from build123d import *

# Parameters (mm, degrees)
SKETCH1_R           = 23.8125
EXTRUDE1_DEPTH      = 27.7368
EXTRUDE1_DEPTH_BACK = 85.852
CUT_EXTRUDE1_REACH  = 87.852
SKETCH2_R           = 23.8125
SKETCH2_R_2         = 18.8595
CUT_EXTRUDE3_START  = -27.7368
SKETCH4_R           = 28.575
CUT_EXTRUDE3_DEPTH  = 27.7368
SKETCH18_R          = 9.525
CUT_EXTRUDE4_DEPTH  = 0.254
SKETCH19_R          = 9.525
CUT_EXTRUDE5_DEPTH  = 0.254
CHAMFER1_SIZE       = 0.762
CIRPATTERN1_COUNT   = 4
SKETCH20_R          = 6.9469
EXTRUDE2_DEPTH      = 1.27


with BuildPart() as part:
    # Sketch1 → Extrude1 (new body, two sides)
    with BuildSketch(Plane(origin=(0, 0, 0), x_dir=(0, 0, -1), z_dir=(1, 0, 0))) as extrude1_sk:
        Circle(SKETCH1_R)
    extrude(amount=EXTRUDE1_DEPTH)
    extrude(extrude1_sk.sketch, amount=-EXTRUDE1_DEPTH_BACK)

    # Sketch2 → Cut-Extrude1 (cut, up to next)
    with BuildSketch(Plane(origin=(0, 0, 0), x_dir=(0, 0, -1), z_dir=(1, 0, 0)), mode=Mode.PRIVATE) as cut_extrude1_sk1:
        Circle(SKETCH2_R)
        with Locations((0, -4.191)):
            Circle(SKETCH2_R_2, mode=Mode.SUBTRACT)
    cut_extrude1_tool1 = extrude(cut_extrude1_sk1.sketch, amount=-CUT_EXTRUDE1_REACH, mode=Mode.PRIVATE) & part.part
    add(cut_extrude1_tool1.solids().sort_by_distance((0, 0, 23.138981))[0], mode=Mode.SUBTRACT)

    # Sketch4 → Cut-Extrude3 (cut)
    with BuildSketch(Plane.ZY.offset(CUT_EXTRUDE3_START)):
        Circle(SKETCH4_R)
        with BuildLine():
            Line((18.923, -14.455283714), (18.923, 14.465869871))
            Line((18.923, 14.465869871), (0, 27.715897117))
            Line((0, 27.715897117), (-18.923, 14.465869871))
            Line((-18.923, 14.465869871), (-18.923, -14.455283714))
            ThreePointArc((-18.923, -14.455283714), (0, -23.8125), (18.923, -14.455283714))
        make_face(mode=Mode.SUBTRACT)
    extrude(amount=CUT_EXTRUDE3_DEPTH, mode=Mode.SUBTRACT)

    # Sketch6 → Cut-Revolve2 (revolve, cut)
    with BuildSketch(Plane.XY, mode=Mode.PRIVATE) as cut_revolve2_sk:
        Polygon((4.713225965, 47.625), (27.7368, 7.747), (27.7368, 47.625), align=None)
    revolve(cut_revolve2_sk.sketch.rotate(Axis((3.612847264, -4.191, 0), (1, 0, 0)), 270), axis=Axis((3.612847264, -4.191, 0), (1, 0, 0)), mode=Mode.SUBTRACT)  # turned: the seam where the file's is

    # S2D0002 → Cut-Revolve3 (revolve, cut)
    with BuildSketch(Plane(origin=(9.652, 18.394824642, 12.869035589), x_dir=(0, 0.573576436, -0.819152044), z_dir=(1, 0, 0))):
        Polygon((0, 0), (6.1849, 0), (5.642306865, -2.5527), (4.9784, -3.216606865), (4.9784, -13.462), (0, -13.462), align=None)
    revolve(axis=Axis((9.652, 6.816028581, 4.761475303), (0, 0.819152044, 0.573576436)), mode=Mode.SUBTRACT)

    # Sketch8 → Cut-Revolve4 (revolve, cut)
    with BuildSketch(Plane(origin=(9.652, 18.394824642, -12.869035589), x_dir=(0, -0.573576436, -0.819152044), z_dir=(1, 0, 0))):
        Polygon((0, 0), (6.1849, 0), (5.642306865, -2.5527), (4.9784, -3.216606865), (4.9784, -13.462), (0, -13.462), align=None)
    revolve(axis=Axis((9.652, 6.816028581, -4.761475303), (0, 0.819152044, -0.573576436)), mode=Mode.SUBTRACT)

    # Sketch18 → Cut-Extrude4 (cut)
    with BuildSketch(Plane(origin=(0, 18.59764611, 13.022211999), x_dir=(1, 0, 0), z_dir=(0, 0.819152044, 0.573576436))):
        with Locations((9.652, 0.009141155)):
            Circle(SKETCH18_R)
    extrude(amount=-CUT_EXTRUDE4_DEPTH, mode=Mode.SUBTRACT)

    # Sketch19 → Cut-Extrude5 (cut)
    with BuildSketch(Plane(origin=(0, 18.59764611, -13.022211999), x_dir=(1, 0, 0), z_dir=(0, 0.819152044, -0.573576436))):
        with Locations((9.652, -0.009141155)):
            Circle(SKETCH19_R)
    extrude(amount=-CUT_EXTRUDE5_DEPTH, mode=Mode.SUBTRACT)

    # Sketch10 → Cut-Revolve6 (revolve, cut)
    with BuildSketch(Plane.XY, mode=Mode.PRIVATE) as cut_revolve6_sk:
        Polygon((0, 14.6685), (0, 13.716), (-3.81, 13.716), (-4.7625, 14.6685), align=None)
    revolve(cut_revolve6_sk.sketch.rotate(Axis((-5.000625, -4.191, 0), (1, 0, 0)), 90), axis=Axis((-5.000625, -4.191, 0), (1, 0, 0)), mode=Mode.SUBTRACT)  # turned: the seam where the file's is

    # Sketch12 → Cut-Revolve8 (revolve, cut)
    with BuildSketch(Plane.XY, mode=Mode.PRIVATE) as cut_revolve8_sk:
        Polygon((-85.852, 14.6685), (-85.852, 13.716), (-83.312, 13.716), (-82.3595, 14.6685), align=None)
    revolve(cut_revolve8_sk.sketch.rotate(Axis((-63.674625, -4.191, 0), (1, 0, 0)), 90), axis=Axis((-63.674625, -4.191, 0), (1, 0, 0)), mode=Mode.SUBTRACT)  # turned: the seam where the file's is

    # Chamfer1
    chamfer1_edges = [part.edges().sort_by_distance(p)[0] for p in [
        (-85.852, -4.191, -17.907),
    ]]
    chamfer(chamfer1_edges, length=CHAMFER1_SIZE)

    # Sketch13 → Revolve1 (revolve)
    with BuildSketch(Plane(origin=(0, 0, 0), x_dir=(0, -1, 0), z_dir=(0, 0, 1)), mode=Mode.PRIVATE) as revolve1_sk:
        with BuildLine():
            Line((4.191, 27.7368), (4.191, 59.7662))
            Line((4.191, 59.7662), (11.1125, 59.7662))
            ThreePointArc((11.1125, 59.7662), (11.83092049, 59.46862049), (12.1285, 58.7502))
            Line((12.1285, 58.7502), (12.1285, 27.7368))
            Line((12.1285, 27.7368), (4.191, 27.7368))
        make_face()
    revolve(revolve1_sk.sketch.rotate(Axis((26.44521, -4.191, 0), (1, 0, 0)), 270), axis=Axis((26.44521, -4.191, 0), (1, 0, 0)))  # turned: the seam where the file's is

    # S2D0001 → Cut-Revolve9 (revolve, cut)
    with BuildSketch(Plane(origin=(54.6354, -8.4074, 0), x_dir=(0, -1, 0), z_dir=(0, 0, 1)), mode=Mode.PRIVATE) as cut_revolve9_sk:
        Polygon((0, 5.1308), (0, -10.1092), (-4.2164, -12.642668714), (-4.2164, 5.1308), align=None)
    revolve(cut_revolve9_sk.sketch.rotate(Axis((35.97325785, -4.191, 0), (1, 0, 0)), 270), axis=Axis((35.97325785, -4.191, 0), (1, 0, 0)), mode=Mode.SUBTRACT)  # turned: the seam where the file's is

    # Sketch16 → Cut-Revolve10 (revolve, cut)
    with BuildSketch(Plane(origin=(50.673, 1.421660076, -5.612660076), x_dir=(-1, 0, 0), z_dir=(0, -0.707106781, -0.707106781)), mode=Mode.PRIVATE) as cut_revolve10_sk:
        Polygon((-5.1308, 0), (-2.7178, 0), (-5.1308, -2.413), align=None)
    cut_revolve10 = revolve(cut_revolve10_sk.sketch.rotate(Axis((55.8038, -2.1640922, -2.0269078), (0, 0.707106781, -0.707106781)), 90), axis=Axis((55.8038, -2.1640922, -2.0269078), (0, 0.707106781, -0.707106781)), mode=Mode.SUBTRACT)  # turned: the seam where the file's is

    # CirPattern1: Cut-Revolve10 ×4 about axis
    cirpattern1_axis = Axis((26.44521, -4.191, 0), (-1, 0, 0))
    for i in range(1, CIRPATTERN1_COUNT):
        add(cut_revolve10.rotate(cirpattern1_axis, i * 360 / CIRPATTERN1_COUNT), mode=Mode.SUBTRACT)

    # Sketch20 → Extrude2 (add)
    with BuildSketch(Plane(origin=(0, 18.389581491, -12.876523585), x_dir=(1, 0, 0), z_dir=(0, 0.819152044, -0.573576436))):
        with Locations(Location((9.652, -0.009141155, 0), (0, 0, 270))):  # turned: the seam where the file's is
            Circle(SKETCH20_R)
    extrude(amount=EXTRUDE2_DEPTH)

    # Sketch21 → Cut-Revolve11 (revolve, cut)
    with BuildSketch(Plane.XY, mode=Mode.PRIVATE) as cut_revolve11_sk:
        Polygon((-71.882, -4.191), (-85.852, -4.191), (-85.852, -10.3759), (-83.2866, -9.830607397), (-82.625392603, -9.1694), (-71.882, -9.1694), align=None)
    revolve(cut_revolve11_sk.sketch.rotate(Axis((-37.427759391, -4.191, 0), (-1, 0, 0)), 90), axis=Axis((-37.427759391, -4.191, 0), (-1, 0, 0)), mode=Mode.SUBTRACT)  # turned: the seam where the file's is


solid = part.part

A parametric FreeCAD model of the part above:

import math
import FreeCAD as App
import Part
import Sketcher
from FreeCAD import Vector
Q = App.Units.Quantity


def edges_at(feature, points):
    """Names of the edges that pass closest to the given points."""
    edges = feature.Shape.Edges
    near = lambda p: min(range(len(edges)), key=lambda i: edges[i].distToShape(Part.Vertex(*p))[0])
    return sorted({f"Edge{near(p) + 1}" for p in points})

doc = App.newDocument("Part")
body = doc.addObject("PartDesign::Body", "Body")

# Sketch on YZ plane
sketch1 = body.newObject("Sketcher::SketchObject", "Sketch")
sketch1.AttachmentSupport = (doc.getObject("YZ_Plane"), [""])
sketch1.MapMode = "FlatFace"
sketch1.addGeometry(Part.Circle(Vector(0, 0, 0), Vector(0, 0, 1), 24), False)
sketch1.addConstraint(Sketcher.Constraint("Coincident", 0, 3, -1, 1))
sketch1.addConstraint(Sketcher.Constraint("Diameter", 0, Q("1.875 in")))
pad1 = body.newObject("PartDesign::Pad", "Pad")
pad1.Profile = sketch1
pad1.Type = "TwoLengths"
pad1.Length = Q("1.092 in")
pad1.Length2 = Q("3.38 in")

# Sketch on YZ plane
sketch2 = body.newObject("Sketcher::SketchObject", "Sketch001")
sketch2.AttachmentSupport = (doc.getObject("YZ_Plane"), [""])
sketch2.MapMode = "FlatFace"
sketch2.addGeometry(Part.Circle(Vector(0, 0, 0), Vector(0, 0, 1), 24), False)
sketch2.addGeometry(Part.Circle(Vector(-4, 0, 0), Vector(0, 0, 1), 19), False)
sketch2.addConstraint(Sketcher.Constraint("Coincident", 0, 3, -1, 1))
sketch2.addConstraint(Sketcher.Constraint("PointOnObject", 1, 3, -1))
sketch2.addConstraint(Sketcher.Constraint("Diameter", 0, Q("1.875 in")))
sketch2.addConstraint(Sketcher.Constraint("Diameter", 1, Q("1.485 in")))
sketch2.addConstraint(Sketcher.Constraint("DistanceX", 1, 3, -1, 1, Q("0.165 in")))
pocket1 = body.newObject("PartDesign::Pocket", "Pocket")
pocket1.Profile = sketch2
pocket1.Type = "UpToFirst"

# Sketch on YZ plane
sketch3 = body.newObject("Sketcher::SketchObject", "Sketch002")
sketch3.AttachmentSupport = (doc.getObject("YZ_Plane"), [""])
sketch3.MapMode = "FlatFace"
sketch3.AttachmentOffset = App.Placement(Vector(0, 0, 1.092 * 25.4), App.Rotation())
sketch3.addGeometry(Part.Circle(Vector(0, 0, 0), Vector(0, 0, 1), 29), False)
sketch3.addGeometry(Part.LineSegment(Vector(14, 19, 0), Vector(-14, 19, 0)), False)
sketch3.addGeometry(Part.ArcOfCircle(Part.Circle(Vector(0, 0, 0), Vector(0, 0, 1), 24), math.radians(127), math.radians(233)), False)
sketch3.addGeometry(Part.LineSegment(Vector(-14, -19, 0), Vector(14, -19, 0)), False)
sketch3.addGeometry(Part.LineSegment(Vector(14, -19, 0), Vector(28, 0, 0)), False)
sketch3.addGeometry(Part.LineSegment(Vector(28, 0, 0), Vector(14, 19, 0)), False)
sketch3.addConstraint(Sketcher.Constraint("Coincident", 1, 2, 2, 1))
sketch3.addConstraint(Sketcher.Constraint("Coincident", 2, 2, 3, 1))
sketch3.addConstraint(Sketcher.Constraint("Coincident", 3, 2, 4, 1))
sketch3.addConstraint(Sketcher.Constraint("Coincident", 4, 2, 5, 1))
sketch3.addConstraint(Sketcher.Constraint("Coincident", 5, 2, 1, 1))
sketch3.addConstraint(Sketcher.Constraint("Horizontal", 1))
sketch3.addConstraint(Sketcher.Constraint("Horizontal", 3))
sketch3.addConstraint(Sketcher.Constraint("Coincident", 0, 3, -1, 1))
sketch3.addConstraint(Sketcher.Constraint("Coincident", 2, 3, -1, 1))
sketch3.addConstraint(Sketcher.Constraint("Symmetric", 3, 2, 5, 2, -1))
sketch3.addConstraint(Sketcher.Constraint("PointOnObject", 4, 2, -1))
sketch3.addConstraint(Sketcher.Constraint("Diameter", 0, Q("2.25 in")))
sketch3.addConstraint(Sketcher.Constraint("Angle", 4, Q("55 deg")))
sketch3.addConstraint(Sketcher.Constraint("Radius", 2, Q("0.9375 in")))
sketch3.addConstraint(Sketcher.Constraint("DistanceY", 2, 2, 1, 2, Q("1.49 in")))
sketch3.addConstraint(Sketcher.Constraint("DistanceX", 1, 2, 1, 1, Q("28.921154 mm")))
pocket2 = body.newObject("PartDesign::Pocket", "Pocket001")
pocket2.Profile = sketch3
pocket2.Length = Q("1.092 in")

# Sketch on XY plane
sketch4 = body.newObject("Sketcher::SketchObject", "Sketch003")
sketch4.AttachmentSupport = (doc.getObject("XY_Plane"), [""])
sketch4.MapMode = "FlatFace"
sketch4.addGeometry(Part.LineSegment(Vector(5, 48, 0), Vector(28, 8, 0)), False)
sketch4.addGeometry(Part.LineSegment(Vector(28, 8, 0), Vector(28, 48, 0)), False)
sketch4.addGeometry(Part.LineSegment(Vector(28, 48, 0), Vector(5, 48, 0)), False)
sketch4.addGeometry(Part.LineSegment(Vector(5, -4, 0), Vector(28, -4, 0)), True)  # axis
sketch4.addConstraint(Sketcher.Constraint("Coincident", 0, 2, 1, 1))
sketch4.addConstraint(Sketcher.Constraint("Coincident", 1, 2, 2, 1))
sketch4.addConstraint(Sketcher.Constraint("Coincident", 2, 2, 0, 1))
sketch4.addConstraint(Sketcher.Constraint("Vertical", 1))
sketch4.addConstraint(Sketcher.Constraint("Horizontal", 2))
sketch4.addConstraint(Sketcher.Constraint("Horizontal", 3))
sketch4.addConstraint(Sketcher.Constraint("Vertical", 2, 2, 3, 1))
sketch4.addConstraint(Sketcher.Constraint("Vertical", 1, 2, 3, 2))
sketch4.addConstraint(Sketcher.Constraint("Angle", 0, Q("-60 deg")))
sketch4.addConstraint(Sketcher.Constraint("DistanceY", 1, 1, 1, 2, Q("1.57 in")))
sketch4.addConstraint(Sketcher.Constraint("DistanceY", 3, 1, 0, 2, Q("0.47 in")))
sketch4.addConstraint(Sketcher.Constraint("DistanceX", -1, 1, 0, 2, Q("1.092 in")))
sketch4.addConstraint(Sketcher.Constraint("DistanceY", -1, 1, 0, 2, Q("0.305 in")))
groove = body.newObject("PartDesign::Groove", "Groove")
groove.Profile = sketch4
groove.ReferenceAxis = (sketch4, ["Axis0"])
groove.Angle = 360

# Sketch on YZ plane
sketch5 = body.newObject("Sketcher::SketchObject", "Sketch004")
sketch5.AttachmentSupport = (doc.getObject("YZ_Plane"), [""])
sketch5.MapMode = "FlatFace"
sketch5.AttachmentOffset = App.Placement(Vector(0, 0, 0.38 * 25.4), App.Rotation())
sketch5.addGeometry(Part.LineSegment(Vector(21.9, 7.8, 0), Vector(18.4, 12.9, 0)), False)
sketch5.addGeometry(Part.LineSegment(Vector(18.4, 12.9, 0), Vector(7.4, 5.1, 0)), False)
sketch5.addGeometry(Part.LineSegment(Vector(7.4, 5.1, 0), Vector(10.2, 1.1, 0)), False)
sketch5.addGeometry(Part.LineSegment(Vector(10.2, 1.1, 0), Vector(18.6, 6.9, 0)), False)
sketch5.addGeometry(Part.LineSegment(Vector(18.6, 6.9, 0), Vector(19.5, 6.8, 0)), False)
sketch5.addGeometry(Part.LineSegment(Vector(19.5, 6.8, 0), Vector(21.9, 7.8, 0)), False)
sketch5.addGeometry(Part.LineSegment(Vector(7.4, 5.1, 0), Vector(18.4, 12.9, 0)), True)  # axis
sketch5.addConstraint(Sketcher.Constraint("Coincident", 0, 2, 1, 1))
sketch5.addConstraint(Sketcher.Constraint("Coincident", 1, 2, 2, 1))
sketch5.addConstraint(Sketcher.Constraint("Coincident", 2, 2, 3, 1))
sketch5.addConstraint(Sketcher.Constraint("Coincident", 3, 2, 4, 1))
sketch5.addConstraint(Sketcher.Constraint("Coincident", 4, 2, 5, 1))
sketch5.addConstraint(Sketcher.Constraint("Coincident", 5, 2, 0, 1))
sketch5.addConstraint(Sketcher.Constraint("Coincident", 6, 1, 1, 2))
sketch5.addConstraint(Sketcher.Constraint("Coincident", 6, 2, 0, 2))
sketch5.addConstraint(Sketcher.Constraint("Perpendicular", 0, 1))
sketch5.addConstraint(Sketcher.Constraint("Perpendicular", 1, 2))
sketch5.addConstraint(Sketcher.Constraint("Perpendicular", 2, 3))
sketch5.addConstraint(Sketcher.Constraint("Angle", 0, Q("125 deg")))
sketch5.addConstraint(Sketcher.Constraint("Angle", 4, Q("-10 deg")))
sketch5.addConstraint(Sketcher.Constraint("Angle", 5, Q("23 deg")))
sketch5.addConstraint(Sketcher.Constraint("Distance", 1, Q("0.53 in")))
sketch5.addConstraint(Sketcher.Constraint("Distance", 2, Q("0.196 in")))
sketch5.addConstraint(Sketcher.Constraint("Distance", 0, Q("0.2435 in")))
sketch5.addConstraint(Sketcher.Constraint("DistanceX", -1, 1, 1, 2, Q("7.3674 mm")))
sketch5.addConstraint(Sketcher.Constraint("DistanceY", -1, 1, 3, 2, Q("6.945999 mm")))
sketch5.addConstraint(Sketcher.Constraint("Distance", 5, Q("2.609729 mm")))
groove2 = body.newObject("PartDesign::Groove", "Groove001")
groove2.Profile = sketch5
groove2.ReferenceAxis = (sketch5, ["Axis0"])
groove2.Angle = 360

# Sketch on YZ plane
sketch6 = body.newObject("Sketcher::SketchObject", "Sketch005")
sketch6.AttachmentSupport = (doc.getObject("YZ_Plane"), [""])
sketch6.MapMode = "FlatFace"
sketch6.AttachmentOffset = App.Placement(Vector(0, 0, 0.38 * 25.4), App.Rotation())
sketch6.addGeometry(Part.LineSegment(Vector(14.8, -17.9, 0), Vector(18.4, -12.9, 0)), False)
sketch6.addGeometry(Part.LineSegment(Vector(18.4, -12.9, 0), Vector(7.4, -5.1, 0)), False)
sketch6.addGeometry(Part.LineSegment(Vector(7.4, -5.1, 0), Vector(4.5, -9.2, 0)), False)
sketch6.addGeometry(Part.LineSegment(Vector(4.5, -9.2, 0), Vector(12.9, -15.1, 0)), False)
sketch6.addGeometry(Part.LineSegment(Vector(12.9, -15.1, 0), Vector(13.1, -16, 0)), False)
sketch6.addGeometry(Part.LineSegment(Vector(13.1, -16, 0), Vector(14.8, -17.9, 0)), False)
sketch6.addGeometry(Part.LineSegment(Vector(7.4, -5.1, 0), Vector(18.4, -12.9, 0)), True)  # axis
sketch6.addConstraint(Sketcher.Constraint("Coincident", 0, 2, 1, 1))
sketch6.addConstraint(Sketcher.Constraint("Coincident", 1, 2, 2, 1))
sketch6.addConstraint(Sketcher.Constraint("Coincident", 2, 2, 3, 1))
sketch6.addConstraint(Sketcher.Constraint("Coincident", 3, 2, 4, 1))
sketch6.addConstraint(Sketcher.Constraint("Coincident", 4, 2, 5, 1))
sketch6.addConstraint(Sketcher.Constraint("Coincident", 5, 2, 0, 1))
sketch6.addConstraint(Sketcher.Constraint("Coincident", 6, 1, 1, 2))
sketch6.addConstraint(Sketcher.Constraint("Coincident", 6, 2, 0, 2))
sketch6.addConstraint(Sketcher.Constraint("Perpendicular", 0, 1))
sketch6.addConstraint(Sketcher.Constraint("Perpendicular", 1, 2))
sketch6.addConstraint(Sketcher.Constraint("Perpendicular", 2, 3))
sketch6.addConstraint(Sketcher.Constraint("Angle", 0, Q("55 deg")))
sketch6.addConstraint(Sketcher.Constraint("Angle", 4, Q("-80 deg")))
sketch6.addConstraint(Sketcher.Constraint("Angle", 5, Q("-47 deg")))
sketch6.addConstraint(Sketcher.Constraint("Distance", 1, Q("0.53 in")))
sketch6.addConstraint(Sketcher.Constraint("Distance", 2, Q("0.196 in")))
sketch6.addConstraint(Sketcher.Constraint("Distance", 0, Q("0.2435 in")))
sketch6.addConstraint(Sketcher.Constraint("DistanceX", -1, 1, 1, 2, Q("7.3674 mm")))
sketch6.addConstraint(Sketcher.Constraint("Distance", 5, Q("2.609729 mm")))
sketch6.addConstraint(Sketcher.Constraint("DistanceY", 1, 2, -1, 1, Q("5.14755 mm")))
groove3 = body.newObject("PartDesign::Groove", "Groove002")
groove3.Profile = sketch6
groove3.ReferenceAxis = (sketch6, ["Axis0"])
groove3.Angle = 360

# Sketch on an angled plane
sketch7 = body.newObject("Sketcher::SketchObject", "Sketch006")
sketch7.Placement = App.Placement(Vector(0, 18.597646, 13.022212), App.Rotation(Vector(1, 0, 0), Vector(0, 0.573576436, -0.819152044), Vector(0, 0.819152044, 0.573576436), "ZXY"))
sketch7.addGeometry(Part.Circle(Vector(10, 0, 0), Vector(0, 0, 1), 10), False)
sketch7.addConstraint(Sketcher.Constraint("Diameter", 0, Q("0.75 in")))
sketch7.addConstraint(Sketcher.Constraint("DistanceX", -1, 1, 0, 3, Q("0.38 in")))
sketch7.addConstraint(Sketcher.Constraint("DistanceY", -1, 1, 0, 3, Q("0.009141 mm")))
pocket3 = body.newObject("PartDesign::Pocket", "Pocket002")
pocket3.Profile = sketch7
pocket3.Length = Q("0.01 in")

# Sketch on an angled plane
sketch8 = body.newObject("Sketcher::SketchObject", "Sketch007")
sketch8.Placement = App.Placement(Vector(0, 18.597646, -13.022212), App.Rotation(Vector(1, 0, 0), Vector(0, -0.573576436, -0.819152044), Vector(0, 0.819152044, -0.573576436), "ZXY"))
sketch8.addGeometry(Part.Circle(Vector(10, 0, 0), Vector(0, 0, 1), 10), False)
sketch8.addConstraint(Sketcher.Constraint("Diameter", 0, Q("0.75 in")))
sketch8.addConstraint(Sketcher.Constraint("DistanceX", -1, 1, 0, 3, Q("0.38 in")))
sketch8.addConstraint(Sketcher.Constraint("DistanceY", 0, 3, -1, 1, Q("0.009141 mm")))
pocket4 = body.newObject("PartDesign::Pocket", "Pocket003")
pocket4.Profile = sketch8
pocket4.Length = Q("0.01 in")

# Sketch on XY plane
sketch9 = body.newObject("Sketcher::SketchObject", "Sketch008")
sketch9.AttachmentSupport = (doc.getObject("XY_Plane"), [""])
sketch9.MapMode = "FlatFace"
sketch9.addGeometry(Part.LineSegment(Vector(0, 13.7, 0), Vector(0, 14.7, 0)), False)
sketch9.addGeometry(Part.LineSegment(Vector(0, 14.7, 0), Vector(-4.8, 14.7, 0)), False)
sketch9.addGeometry(Part.LineSegment(Vector(-4.8, 14.7, 0), Vector(-3.8, 13.7, 0)), False)
sketch9.addGeometry(Part.LineSegment(Vector(-3.8, 13.7, 0), Vector(0, 13.7, 0)), False)
sketch9.addGeometry(Part.LineSegment(Vector(-4.8, -4.2, 0), Vector(0, -4.2, 0)), True)  # axis
sketch9.addConstraint(Sketcher.Constraint("Coincident", 0, 2, 1, 1))
sketch9.addConstraint(Sketcher.Constraint("Coincident", 1, 2, 2, 1))
sketch9.addConstraint(Sketcher.Constraint("Coincident", 2, 2, 3, 1))
sketch9.addConstraint(Sketcher.Constraint("Coincident", 3, 2, 0, 1))
sketch9.addConstraint(Sketcher.Constraint("Vertical", 0))
sketch9.addConstraint(Sketcher.Constraint("Horizontal", 1))
sketch9.addConstraint(Sketcher.Constraint("Horizontal", 3))
sketch9.addConstraint(Sketcher.Constraint("Horizontal", 4))
sketch9.addConstraint(Sketcher.Constraint("PointOnObject", 0, 2, -2))
sketch9.addConstraint(Sketcher.Constraint("PointOnObject", 4, 2, -2))
sketch9.addConstraint(Sketcher.Constraint("Vertical", 1, 2, 4, 1))
sketch9.addConstraint(Sketcher.Constraint("Angle", 2, Q("-45 deg")))
sketch9.addConstraint(Sketcher.Constraint("DistanceX", 3, 1, 3, 2, Q("0.15 in")))
sketch9.addConstraint(Sketcher.Constraint("DistanceX", 1, 2, 1, 1, Q("0.1875 in")))
sketch9.addConstraint(Sketcher.Constraint("DistanceY", -1, 1, 2, 2, Q("0.54 in")))
sketch9.addConstraint(Sketcher.Constraint("DistanceY", 4, 1, -1, 1, Q("0.165 in")))
groove4 = body.newObject("PartDesign::Groove", "Groove003")
groove4.Profile = sketch9
groove4.ReferenceAxis = (sketch9, ["Axis0"])
groove4.Angle = 360

# Sketch on XY plane
sketch10 = body.newObject("Sketcher::SketchObject", "Sketch009")
sketch10.AttachmentSupport = (doc.getObject("XY_Plane"), [""])
sketch10.MapMode = "FlatFace"
sketch10.addGeometry(Part.LineSegment(Vector(-85.9, 14.7, 0), Vector(-85.9, 13.7, 0)), False)
sketch10.addGeometry(Part.LineSegment(Vector(-85.9, 13.7, 0), Vector(-83.3, 13.7, 0)), False)
sketch10.addGeometry(Part.LineSegment(Vector(-83.3, 13.7, 0), Vector(-82.4, 14.7, 0)), False)
sketch10.addGeometry(Part.LineSegment(Vector(-82.4, 14.7, 0), Vector(-85.9, 14.7, 0)), False)
sketch10.addGeometry(Part.LineSegment(Vector(-85.9, -4.2, 0), Vector(-82.4, -4.2, 0)), True)  # axis
sketch10.addConstraint(Sketcher.Constraint("Coincident", 0, 2, 1, 1))
sketch10.addConstraint(Sketcher.Constraint("Coincident", 1, 2, 2, 1))
sketch10.addConstraint(Sketcher.Constraint("Coincident", 2, 2, 3, 1))
sketch10.addConstraint(Sketcher.Constraint("Coincident", 3, 2, 0, 1))
sketch10.addConstraint(Sketcher.Constraint("Vertical", 0))
sketch10.addConstraint(Sketcher.Constraint("Horizontal", 1))
sketch10.addConstraint(Sketcher.Constraint("Horizontal", 3))
sketch10.addConstraint(Sketcher.Constraint("Horizontal", 4))
sketch10.addConstraint(Sketcher.Constraint("Vertical", 3, 2, 4, 1))
sketch10.addConstraint(Sketcher.Constraint("Vertical", 2, 2, 4, 2))
sketch10.addConstraint(Sketcher.Constraint("DistanceX", 1, 1, 1, 2, Q("0.1 in")))
sketch10.addConstraint(Sketcher.Constraint("Angle", 2, Q("45 deg")))
sketch10.addConstraint(Sketcher.Constraint("DistanceX", 0, 2, -1, 1, Q("3.38 in")))
sketch10.addConstraint(Sketcher.Constraint("DistanceY", -1, 1, 0, 2, Q("0.54 in")))
sketch10.addConstraint(Sketcher.Constraint("DistanceX", 3, 2, 3, 1, Q("0.1375 in")))
sketch10.addConstraint(Sketcher.Constraint("DistanceY", 4, 1, -1, 1, Q("0.165 in")))
groove5 = body.newObject("PartDesign::Groove", "Groove004")
groove5.Profile = sketch10
groove5.ReferenceAxis = (sketch10, ["Axis0"])
groove5.Angle = 360
doc.recompute()

chamfer = body.newObject("PartDesign::Chamfer", "Chamfer")
chamfer.Base = (groove5, edges_at(groove5, [(-85.852, -4.191, -17.907)]))
chamfer.Size = Q("0.03 in")

# Sketch on XY plane
sketch11 = body.newObject("Sketcher::SketchObject", "Sketch010")
sketch11.AttachmentSupport = (doc.getObject("XY_Plane"), [""])
sketch11.MapMode = "FlatFace"
sketch11.addGeometry(Part.LineSegment(Vector(59.8, -4.2, 0), Vector(27.7, -4.2, 0)), False)
sketch11.addGeometry(Part.LineSegment(Vector(27.7, -4.2, 0), Vector(27.7, -12.1, 0)), False)
sketch11.addGeometry(Part.LineSegment(Vector(27.7, -12.1, 0), Vector(58.8, -12.1, 0)), False)
sketch11.addGeometry(Part.ArcOfCircle(Part.Circle(Vector(58.8, -11.1, 0), Vector(0, 0, 1), 1), math.radians(-90), math.radians(0)), False)
sketch11.addGeometry(Part.LineSegment(Vector(59.8, -11.1, 0), Vector(59.8, -4.2, 0)), False)
sketch11.addGeometry(Part.LineSegment(Vector(27.7, -4.2, 0), Vector(59.8, -4.2, 0)), True)  # axis
sketch11.addConstraint(Sketcher.Constraint("Coincident", 0, 2, 1, 1))
sketch11.addConstraint(Sketcher.Constraint("Coincident", 1, 2, 2, 1))
sketch11.addConstraint(Sketcher.Constraint("Tangent", 2, 2, 3, 1))
sketch11.addConstraint(Sketcher.Constraint("Tangent", 3, 2, 4, 1))
sketch11.addConstraint(Sketcher.Constraint("Coincident", 4, 2, 0, 1))
sketch11.addConstraint(Sketcher.Constraint("Horizontal", 0))
sketch11.addConstraint(Sketcher.Constraint("Vertical", 1))
sketch11.addConstraint(Sketcher.Constraint("Horizontal", 2))
sketch11.addConstraint(Sketcher.Constraint("Vertical", 4))
sketch11.addConstraint(Sketcher.Constraint("Horizontal", 5))
sketch11.addConstraint(Sketcher.Constraint("Coincident", 5, 1, 0, 2))
sketch11.addConstraint(Sketcher.Constraint("Vertical", 3, 2, 5, 2))
sketch11.addConstraint(Sketcher.Constraint("Radius", 3, Q("0.04 in")))
sketch11.addConstraint(Sketcher.Constraint("DistanceX", 0, 2, 0, 1, Q("1.261 in")))
sketch11.addConstraint(Sketcher.Constraint("DistanceY", 1, 2, 1, 1, Q("0.3125 in")))
sketch11.addConstraint(Sketcher.Constraint("DistanceX", -1, 1, 3, 3, Q("2.313 in")))
sketch11.addConstraint(Sketcher.Constraint("DistanceY", 3, 3, -1, 1, Q("0.4375 in")))
revolution = body.newObject("PartDesign::Revolution", "Revolution")
revolution.Profile = sketch11
revolution.ReferenceAxis = (sketch11, ["Axis0"])
revolution.Angle = 360

# Sketch on XY plane
sketch12 = body.newObject("Sketcher::SketchObject", "Sketch011")
sketch12.AttachmentSupport = (doc.getObject("XY_Plane"), [""])
sketch12.MapMode = "FlatFace"
sketch12.addGeometry(Part.LineSegment(Vector(44.5, -8.4, 0), Vector(59.8, -8.4, 0)), False)
sketch12.addGeometry(Part.LineSegment(Vector(59.8, -8.4, 0), Vector(59.8, -4.2, 0)), False)
sketch12.addGeometry(Part.LineSegment(Vector(59.8, -4.2, 0), Vector(42, -4.2, 0)), False)
sketch12.addGeometry(Part.LineSegment(Vector(42, -4.2, 0), Vector(44.5, -8.4, 0)), False)
sketch12.addGeometry(Part.LineSegment(Vector(42, -4.2, 0), Vector(59.8, -4.2, 0)), True)  # axis
sketch12.addConstraint(Sketcher.Constraint("Coincident", 0, 2, 1, 1))
sketch12.addConstraint(Sketcher.Constraint("Coincident", 1, 2, 2, 1))
sketch12.addConstraint(Sketcher.Constraint("Coincident", 2, 2, 3, 1))
sketch12.addConstraint(Sketcher.Constraint("Coincident", 3, 2, 0, 1))
sketch12.addConstraint(Sketcher.Constraint("Horizontal", 0))
sketch12.addConstraint(Sketcher.Constraint("Vertical", 1))
sketch12.addConstraint(Sketcher.Constraint("Horizontal", 2))
sketch12.addConstraint(Sketcher.Constraint("Horizontal", 4))
sketch12.addConstraint(Sketcher.Constraint("Coincident", 4, 1, 2, 2))
sketch12.addConstraint(Sketcher.Constraint("Vertical", 0, 2, 4, 2))
sketch12.addConstraint(Sketcher.Constraint("DistanceX", 0, 1, 0, 2, Q("0.6 in")))
sketch12.addConstraint(Sketcher.Constraint("Angle", 3, Q("-59 deg")))
sketch12.addConstraint(Sketcher.Constraint("DistanceY", 1, 1, 1, 2, Q("0.166 in")))
sketch12.addConstraint(Sketcher.Constraint("DistanceX", -1, 1, 0, 2, Q("2.353 in")))
sketch12.addConstraint(Sketcher.Constraint("DistanceY", 0, 2, -1, 1, Q("0.331 in")))
groove6 = body.newObject("PartDesign::Groove", "Groove005")
groove6.Profile = sketch12
groove6.ReferenceAxis = (sketch12, ["Axis0"])
groove6.Angle = 360

# Sketch on an angled plane
sketch13 = body.newObject("Sketcher::SketchObject", "Sketch012")
sketch13.Placement = App.Placement(Vector(50.673, 1.42166, -5.61266), App.Rotation(Vector(-1, 0, 0), Vector(0, 0.707106781, -0.707106781), Vector(0, -0.707106781, -0.707106781), "ZXY"))
sketch13.addGeometry(Part.LineSegment(Vector(-2.7, 0, 0), Vector(-5.1, 0, 0)), False)
sketch13.addGeometry(Part.LineSegment(Vector(-5.1, 0, 0), Vector(-5.1, -2.4, 0)), False)
sketch13.addGeometry(Part.LineSegment(Vector(-5.1, -2.4, 0), Vector(-2.7, 0, 0)), False)
sketch13.addGeometry(Part.LineSegment(Vector(-5.1, -2.4, 0), Vector(-5.1, 0, 0)), True)  # axis
sketch13.addConstraint(Sketcher.Constraint("Coincident", 0, 2, 1, 1))
sketch13.addConstraint(Sketcher.Constraint("Coincident", 1, 2, 2, 1))
sketch13.addConstraint(Sketcher.Constraint("Coincident", 2, 2, 0, 1))
sketch13.addConstraint(Sketcher.Constraint("Horizontal", 0))
sketch13.addConstraint(Sketcher.Constraint("Vertical", 1))
sketch13.addConstraint(Sketcher.Constraint("Vertical", 3))
sketch13.addConstraint(Sketcher.Constraint("Coincident", 3, 1, 1, 2))
sketch13.addConstraint(Sketcher.Constraint("PointOnObject", 0, 2, -1))
sketch13.addConstraint(Sketcher.Constraint("PointOnObject", 3, 2, -1))
sketch13.addConstraint(Sketcher.Constraint("Equal", 0, 1))
sketch13.addConstraint(Sketcher.Constraint("DistanceX", 0, 2, 0, 1, Q("0.095 in")))
sketch13.addConstraint(Sketcher.Constraint("DistanceX", 0, 2, -1, 1, Q("0.202 in")))
groove7 = body.newObject("PartDesign::Groove", "Groove006")
groove7.Profile = sketch13
groove7.ReferenceAxis = (sketch13, ["Axis0"])
groove7.Angle = 360
doc.recompute()

datumline = body.newObject("PartDesign::Line", "DatumLine")
datumline.Placement = App.Placement(Vector(0, -4.191, 0), App.Rotation(Vector(0, 0, 1), Vector(-1, 0, 0)))
polarpattern = body.newObject("PartDesign::PolarPattern", "PolarPattern")
polarpattern.Originals = [groove7]
polarpattern.Axis = (datumline, [""])
polarpattern.Angle = 360
polarpattern.Occurrences = 4
body.Tip = polarpattern

# Sketch on an angled plane
sketch14 = body.newObject("Sketcher::SketchObject", "Sketch013")
sketch14.Placement = App.Placement(Vector(0, 18.389581, -12.876524), App.Rotation(Vector(1, 0, 0), Vector(0, -0.573576436, -0.819152044), Vector(0, 0.819152044, -0.573576436), "ZXY"))
sketch14.addGeometry(Part.Circle(Vector(10, 0, 0), Vector(0, 0, 1), 7), False)
sketch14.addConstraint(Sketcher.Constraint("Diameter", 0, Q("0.547 in")))
sketch14.addConstraint(Sketcher.Constraint("DistanceX", -1, 1, 0, 3, Q("0.38 in")))
sketch14.addConstraint(Sketcher.Constraint("DistanceY", 0, 3, -1, 1, Q("0.009141 mm")))
pad2 = body.newObject("PartDesign::Pad", "Pad001")
pad2.Profile = sketch14
pad2.Length = Q("0.05 in")

# Sketch on XY plane
sketch15 = body.newObject("Sketcher::SketchObject", "Sketch014")
sketch15.AttachmentSupport = (doc.getObject("XY_Plane"), [""])
sketch15.MapMode = "FlatFace"
sketch15.addGeometry(Part.LineSegment(Vector(-71.9, -4.2, 0), Vector(-85.9, -4.2, 0)), False)
sketch15.addGeometry(Part.LineSegment(Vector(-85.9, -4.2, 0), Vector(-85.9, -10.4, 0)), False)
sketch15.addGeometry(Part.LineSegment(Vector(-85.9, -10.4, 0), Vector(-83.3, -9.8, 0)), False)
sketch15.addGeometry(Part.LineSegment(Vector(-83.3, -9.8, 0), Vector(-82.6, -9.2, 0)), False)
sketch15.addGeometry(Part.LineSegment(Vector(-82.6, -9.2, 0), Vector(-71.9, -9.2, 0)), False)
sketch15.addGeometry(Part.LineSegment(Vector(-71.9, -9.2, 0), Vector(-71.9, -4.2, 0)), False)
sketch15.addGeometry(Part.LineSegment(Vector(-71.9, -4.2, 0), Vector(-85.9, -4.2, 0)), True)  # axis
sketch15.addConstraint(Sketcher.Constraint("Coincident", 0, 2, 1, 1))
sketch15.addConstraint(Sketcher.Constraint("Coincident", 1, 2, 2, 1))
sketch15.addConstraint(Sketcher.Constraint("Coincident", 2, 2, 3, 1))
sketch15.addConstraint(Sketcher.Constraint("Coincident", 3, 2, 4, 1))
sketch15.addConstraint(Sketcher.Constraint("Coincident", 4, 2, 5, 1))
sketch15.addConstraint(Sketcher.Constraint("Coincident", 5, 2, 0, 1))
sketch15.addConstraint(Sketcher.Constraint("Horizontal", 0))
sketch15.addConstraint(Sketcher.Constraint("Vertical", 1))
sketch15.addConstraint(Sketcher.Constraint("Horizontal", 4))
sketch15.addConstraint(Sketcher.Constraint("Vertical", 5))
sketch15.addConstraint(Sketcher.Constraint("Horizontal", 6))
sketch15.addConstraint(Sketcher.Constraint("Coincident", 6, 1, 5, 2))
sketch15.addConstraint(Sketcher.Constraint("Vertical", 1, 2, 6, 2))
sketch15.addConstraint(Sketcher.Constraint("Angle", 2, Q("12 deg")))
sketch15.addConstraint(Sketcher.Constraint("Angle", 3, Q("45 deg")))
sketch15.addConstraint(Sketcher.Constraint("DistanceX", 0, 2, 0, 1, Q("0.55 in")))
sketch15.addConstraint(Sketcher.Constraint("DistanceY", 5, 1, 5, 2, Q("0.196 in")))
sketch15.addConstraint(Sketcher.Constraint("DistanceX", 0, 2, -1, 1, Q("3.38 in")))
sketch15.addConstraint(Sketcher.Constraint("DistanceY", 1, 2, 1, 1, Q("0.2435 in")))
sketch15.addConstraint(Sketcher.Constraint("DistanceY", 0, 2, -1, 1, Q("0.165 in")))
sketch15.addConstraint(Sketcher.Constraint("DistanceX", 2, 2, -1, 1, Q("3.279 in")))
groove8 = body.newObject("PartDesign::Groove", "Groove007")
groove8.Profile = sketch15
groove8.ReferenceAxis = (sketch15, ["Axis0"])
groove8.Angle = 360

doc.recompute()
